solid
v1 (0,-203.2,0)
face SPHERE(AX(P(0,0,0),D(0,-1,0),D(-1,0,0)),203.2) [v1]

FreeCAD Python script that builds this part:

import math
import FreeCAD as App
import Part
import Sketcher
Q = App.Units.Quantity

doc = App.newDocument("Part")
params = doc.addObject("Spreadsheet::Sheet", "Params")
for row, (alias, value) in enumerate([
    ("sketch1_radius", "8 in"),
    ("revolution_angle", "360 deg"),
], start=1):
    params.set(f"A{row}", alias)
    params.set(f"B{row}", "=" + value)
    params.setAlias(f"B{row}", alias)

body = doc.addObject("PartDesign::Body", "Body")

sketch1 = body.newObject("Sketcher::SketchObject", "Sketch")
sketch1.AttachmentSupport = (doc.getObject("XY_Plane"), [""])
sketch1.MapMode = "FlatFace"
sketch1.addGeometry([
    Part.LineSegment(App.Vector(0, 203, 0), App.Vector(0, -203, 0)),
    Part.ArcOfCircle(Part.Circle(App.Vector(0, 0, 0), App.Vector(0, 0, 1), 203), math.radians(-90), math.radians(90)),
], False)
sketch1.addConstraint([
    Sketcher.Constraint("Coincident", 0, 1, 1, 2),
    Sketcher.Constraint("Coincident", 1, 1, 0, 2),
    Sketcher.Constraint("Vertical", 0),
    Sketcher.Constraint("Coincident", 1, 3, -1, 1),
    Sketcher.Constraint("PointOnObject", 0, 1, -2),
    Sketcher.Constraint("Radius", 1, Q("8 in")),
])
sketch1.setExpression("Constraints[5]", "Params.sketch1_radius")
revolution = body.newObject("PartDesign::Revolution", "Revolution")
revolution.Profile = sketch1
revolution.ReferenceAxis = (sketch1, ["V_Axis"])
revolution.setExpression("Angle", "Params.revolution_angle")

doc.recompute()
